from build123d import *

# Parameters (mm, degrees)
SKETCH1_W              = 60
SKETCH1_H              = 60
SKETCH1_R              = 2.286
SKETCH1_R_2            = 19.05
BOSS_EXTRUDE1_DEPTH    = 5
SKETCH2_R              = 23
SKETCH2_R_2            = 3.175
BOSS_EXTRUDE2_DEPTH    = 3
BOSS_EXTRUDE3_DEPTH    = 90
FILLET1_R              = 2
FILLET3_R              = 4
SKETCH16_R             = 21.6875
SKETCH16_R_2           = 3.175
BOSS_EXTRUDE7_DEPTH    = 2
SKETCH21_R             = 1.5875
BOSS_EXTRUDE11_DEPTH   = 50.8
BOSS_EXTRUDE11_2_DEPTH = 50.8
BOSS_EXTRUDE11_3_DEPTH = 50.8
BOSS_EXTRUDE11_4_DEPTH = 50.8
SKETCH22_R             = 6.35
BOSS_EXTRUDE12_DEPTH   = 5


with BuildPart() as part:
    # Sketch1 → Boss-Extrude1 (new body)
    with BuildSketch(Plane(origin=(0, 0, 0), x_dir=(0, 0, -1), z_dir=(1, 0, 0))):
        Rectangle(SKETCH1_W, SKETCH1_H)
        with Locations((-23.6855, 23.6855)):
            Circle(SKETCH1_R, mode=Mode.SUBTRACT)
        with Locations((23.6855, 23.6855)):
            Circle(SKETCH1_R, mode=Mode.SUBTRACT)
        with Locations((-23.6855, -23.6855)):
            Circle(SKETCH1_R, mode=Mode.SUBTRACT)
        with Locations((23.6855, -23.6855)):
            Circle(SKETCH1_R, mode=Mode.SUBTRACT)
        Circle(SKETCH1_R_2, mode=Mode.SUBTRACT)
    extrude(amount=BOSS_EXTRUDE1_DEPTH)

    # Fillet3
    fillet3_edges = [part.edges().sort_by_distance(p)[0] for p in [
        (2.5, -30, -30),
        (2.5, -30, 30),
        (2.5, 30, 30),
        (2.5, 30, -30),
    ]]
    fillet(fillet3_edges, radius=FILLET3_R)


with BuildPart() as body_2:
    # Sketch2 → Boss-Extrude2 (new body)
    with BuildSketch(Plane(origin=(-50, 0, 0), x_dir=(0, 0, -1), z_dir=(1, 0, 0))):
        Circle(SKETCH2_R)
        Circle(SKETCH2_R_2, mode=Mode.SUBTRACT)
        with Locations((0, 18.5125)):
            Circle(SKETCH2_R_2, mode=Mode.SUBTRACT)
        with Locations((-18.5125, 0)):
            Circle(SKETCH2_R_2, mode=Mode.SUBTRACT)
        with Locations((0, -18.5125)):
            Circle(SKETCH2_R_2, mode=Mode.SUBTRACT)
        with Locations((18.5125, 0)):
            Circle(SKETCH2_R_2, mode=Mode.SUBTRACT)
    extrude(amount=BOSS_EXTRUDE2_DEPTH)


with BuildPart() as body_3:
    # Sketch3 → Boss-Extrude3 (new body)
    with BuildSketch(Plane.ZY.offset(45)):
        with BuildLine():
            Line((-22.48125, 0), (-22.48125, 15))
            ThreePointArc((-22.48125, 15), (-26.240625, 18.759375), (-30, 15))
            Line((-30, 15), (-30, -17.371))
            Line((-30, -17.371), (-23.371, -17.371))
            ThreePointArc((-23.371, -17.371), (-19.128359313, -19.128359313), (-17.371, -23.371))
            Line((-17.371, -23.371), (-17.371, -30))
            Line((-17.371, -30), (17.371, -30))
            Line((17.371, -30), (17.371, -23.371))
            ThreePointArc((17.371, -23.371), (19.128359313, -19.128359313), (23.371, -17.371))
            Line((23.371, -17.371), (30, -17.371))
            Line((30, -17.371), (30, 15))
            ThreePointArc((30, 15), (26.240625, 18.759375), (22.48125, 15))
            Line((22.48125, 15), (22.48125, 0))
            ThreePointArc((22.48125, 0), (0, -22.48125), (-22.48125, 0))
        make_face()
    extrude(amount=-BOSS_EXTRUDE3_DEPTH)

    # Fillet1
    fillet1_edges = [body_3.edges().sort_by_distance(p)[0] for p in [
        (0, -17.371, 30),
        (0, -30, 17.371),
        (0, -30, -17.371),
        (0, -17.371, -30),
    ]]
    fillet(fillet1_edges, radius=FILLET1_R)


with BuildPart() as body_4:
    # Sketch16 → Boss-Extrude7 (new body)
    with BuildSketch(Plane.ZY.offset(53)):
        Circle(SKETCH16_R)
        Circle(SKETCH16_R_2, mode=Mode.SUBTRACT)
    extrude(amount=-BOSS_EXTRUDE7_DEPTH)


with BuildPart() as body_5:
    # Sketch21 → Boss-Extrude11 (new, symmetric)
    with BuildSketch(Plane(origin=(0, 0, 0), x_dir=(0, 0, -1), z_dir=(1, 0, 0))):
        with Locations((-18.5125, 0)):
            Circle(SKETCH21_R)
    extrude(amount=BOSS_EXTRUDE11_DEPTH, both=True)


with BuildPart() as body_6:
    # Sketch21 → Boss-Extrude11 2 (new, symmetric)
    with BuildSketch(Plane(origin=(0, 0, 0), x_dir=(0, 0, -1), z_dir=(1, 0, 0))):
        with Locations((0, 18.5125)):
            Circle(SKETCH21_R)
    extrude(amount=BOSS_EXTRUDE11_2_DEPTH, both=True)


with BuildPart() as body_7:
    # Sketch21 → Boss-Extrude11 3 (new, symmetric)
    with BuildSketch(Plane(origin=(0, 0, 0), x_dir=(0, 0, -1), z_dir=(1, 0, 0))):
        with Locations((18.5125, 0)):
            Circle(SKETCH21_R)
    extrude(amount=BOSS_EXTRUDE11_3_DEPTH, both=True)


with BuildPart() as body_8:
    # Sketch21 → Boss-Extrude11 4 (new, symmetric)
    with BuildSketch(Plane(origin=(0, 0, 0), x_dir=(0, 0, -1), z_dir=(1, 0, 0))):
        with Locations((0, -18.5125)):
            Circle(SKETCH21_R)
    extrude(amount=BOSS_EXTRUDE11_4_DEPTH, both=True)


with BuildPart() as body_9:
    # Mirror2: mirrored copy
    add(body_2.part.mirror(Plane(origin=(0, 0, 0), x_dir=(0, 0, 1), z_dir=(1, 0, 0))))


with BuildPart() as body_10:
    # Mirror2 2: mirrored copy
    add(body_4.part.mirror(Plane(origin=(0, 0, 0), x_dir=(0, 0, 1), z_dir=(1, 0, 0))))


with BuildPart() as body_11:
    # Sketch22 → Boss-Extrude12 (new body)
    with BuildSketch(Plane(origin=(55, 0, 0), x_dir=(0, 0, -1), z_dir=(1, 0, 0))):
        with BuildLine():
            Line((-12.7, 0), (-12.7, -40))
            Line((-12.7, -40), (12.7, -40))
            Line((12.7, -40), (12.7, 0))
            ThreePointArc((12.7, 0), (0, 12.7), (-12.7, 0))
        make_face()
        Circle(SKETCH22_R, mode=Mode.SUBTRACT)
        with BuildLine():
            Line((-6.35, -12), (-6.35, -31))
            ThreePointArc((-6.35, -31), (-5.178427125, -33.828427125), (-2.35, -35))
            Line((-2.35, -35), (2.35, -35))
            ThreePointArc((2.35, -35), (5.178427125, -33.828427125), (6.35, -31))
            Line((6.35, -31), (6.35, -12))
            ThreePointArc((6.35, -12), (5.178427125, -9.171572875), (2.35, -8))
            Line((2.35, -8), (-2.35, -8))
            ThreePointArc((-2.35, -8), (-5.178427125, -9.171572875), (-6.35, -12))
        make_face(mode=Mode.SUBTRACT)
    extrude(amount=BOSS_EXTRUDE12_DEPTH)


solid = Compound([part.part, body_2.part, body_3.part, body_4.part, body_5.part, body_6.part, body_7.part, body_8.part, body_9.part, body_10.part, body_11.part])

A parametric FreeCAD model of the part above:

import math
import FreeCAD as App
import Part
import Sketcher


def edges_at(feature, points):
    """Names of the edges that pass closest to the given points."""
    edges = feature.Shape.Edges
    near = lambda p: min(range(len(edges)), key=lambda i: edges[i].distToShape(Part.Vertex(*p))[0])
    return sorted({f"Edge{near(p) + 1}" for p in points})


def add_polygon(sketch, points):
    """Adds a closed chain of lines whose ends are joined by coincident constraints."""
    first, n = sketch.GeometryCount, len(points)
    for a, b in zip(points, points[1:] + points[:1]):
        sketch.addGeometry(Part.LineSegment(App.Vector(*a, 0), App.Vector(*b, 0)), False)
    for i in range(n):
        sketch.addConstraint(Sketcher.Constraint("Coincident", first + i, 2, first + (i + 1) % n, 1))

doc = App.newDocument("Part")
params = doc.addObject("Spreadsheet::Sheet", "Params")
for row, (alias, value) in enumerate([
    ("sketch1_diameter", "38.1 mm"),
    ("sketch1_width", "60 mm"),
    ("pad1_length", "5 mm"),
    ("fillet_radius", "4 mm"),
    ("sketch2_diameter", "46 mm"),
    ("sketch2_diameter2", "6.35 mm"),
    ("pad2_length", "3 mm"),
    ("sketch3_radius", "6 mm"),
    ("sketch3_width", "15 mm"),
    ("pad3_length", "90 mm"),
    ("fillet2_radius", "2 mm"),
    ("sketch4_diameter", "6.35 mm"),
    ("pad4_length", "2 mm"),
    ("pad5_length", "101.6 mm"),
    ("pad6_length", "101.6 mm"),
    ("pad7_length", "101.6 mm"),
    ("pad8_length", "101.6 mm"),
    ("sketch9_radius", "4 mm"),
    ("sketch9_diameter", "12.7 mm"),
    ("sketch9_radius2", "12.7 mm"),
    ("sketch9_width", "40 mm"),
    ("sketch9_width2", "19 mm"),
    ("pad9_length", "5 mm"),
], start=1):
    params.set(f"A{row}", alias)
    params.set(f"B{row}", "=" + value)
    params.setAlias(f"B{row}", alias)

body = doc.addObject("PartDesign::Body", "Body")

sketch1 = body.newObject("Sketcher::SketchObject", "Sketch")
sketch1.AttachmentSupport = (doc.getObject("YZ_Plane"), [""])
sketch1.MapMode = "FlatFace"
add_polygon(sketch1, [(30, 30), (-30, 30), (-30, -30), (30, -30)])
sketch1.addGeometry(Part.Circle(App.Vector(-23.6855, 23.6855, 0), App.Vector(0, 0, 1), 2.286), False)
sketch1.addGeometry(Part.Circle(App.Vector(-23.6855, -23.6855, 0), App.Vector(0, 0, 1), 2.286), False)
sketch1.addGeometry(Part.Circle(App.Vector(23.6855, 23.6855, 0), App.Vector(0, 0, 1), 2.286), False)
sketch1.addGeometry(Part.Circle(App.Vector(0, 0, 0), App.Vector(0, 0, 1), 19.05), False)
sketch1.addGeometry(Part.Circle(App.Vector(23.6855, -23.6855, 0), App.Vector(0, 0, 1), 2.286), False)
sketch1.addConstraint([
    Sketcher.Constraint("Horizontal", 0),
    Sketcher.Constraint("Vertical", 1),
    Sketcher.Constraint("Horizontal", 2),
    Sketcher.Constraint("Vertical", 3),
    Sketcher.Constraint("Coincident", 7, 3, -1, 1),
    Sketcher.Constraint("Equal", 4, 5),
    Sketcher.Constraint("Equal", 5, 6),
    Sketcher.Constraint("Equal", 6, 8),
    Sketcher.Constraint("Symmetric", 5, 3, 6, 3, -1, 1),
    Sketcher.Constraint("Symmetric", 4, 3, 8, 3, -1, 1),
    Sketcher.Constraint("Symmetric", 0, 2, 2, 2, -1, 1),
    Sketcher.Constraint("Symmetric", 4, 3, 6, 3, -2),
    Sketcher.Constraint("Equal", 2, 1),
    Sketcher.Constraint("Diameter", 7, 38.1),
    Sketcher.Constraint("DistanceX", 0, 2, 0, 1, 60.0),
    Sketcher.Constraint("Diameter", 4, 4.572),
    Sketcher.Constraint("DistanceY", 5, 3, 4, 3, 47.371),
    Sketcher.Constraint("DistanceX", 4, 3, 6, 3, 47.371),
])
sketch1.setExpression("Constraints[17]", "Params.sketch1_diameter")
sketch1.setExpression("Constraints[18]", "Params.sketch1_width")
pad1 = body.newObject("PartDesign::Pad", "Pad")
pad1.Profile = sketch1
pad1.setExpression("Length", "Params.pad1_length")
doc.recompute()

fillet = body.newObject("PartDesign::Fillet", "Fillet")
fillet.Base = (pad1, edges_at(pad1, [
    (2.5, -30, -30),
    (2.5, -30, 30),
    (2.5, 30, 30),
    (2.5, 30, -30),
]))
fillet.setExpression("Radius", "Params.fillet_radius")
body2 = doc.addObject("PartDesign::Body", "Body001")

sketch2 = body2.newObject("Sketcher::SketchObject", "Sketch001")
sketch2.AttachmentSupport = (doc.getObject("YZ_Plane001"), [""])
sketch2.MapMode = "FlatFace"
sketch2.AttachmentOffset = App.Placement(App.Vector(0, 0, -50), App.Rotation())
sketch2.addGeometry([
    Part.Circle(App.Vector(0, 0, 0), App.Vector(0, 0, 1), 23),
    Part.Circle(App.Vector(-18.5125, 0, 0), App.Vector(0, 0, 1), 3.175),
    Part.Circle(App.Vector(0, 18.5125, 0), App.Vector(0, 0, 1), 3.175),
    Part.Circle(App.Vector(0, 0, 0), App.Vector(0, 0, 1), 3.175),
    Part.Circle(App.Vector(0, -18.5125, 0), App.Vector(0, 0, 1), 3.175),
    Part.Circle(App.Vector(18.5125, 0, 0), App.Vector(0, 0, 1), 3.175),
], False)
sketch2.addConstraint([
    Sketcher.Constraint("Coincident", 0, 3, -1, 1),
    Sketcher.Constraint("Coincident", 3, 3, -1, 1),
    Sketcher.Constraint("Equal", 1, 2),
    Sketcher.Constraint("Equal", 2, 3),
    Sketcher.Constraint("Equal", 3, 4),
    Sketcher.Constraint("Equal", 4, 5),
    Sketcher.Constraint("Symmetric", 2, 3, 4, 3, -1, 1),
    Sketcher.Constraint("Symmetric", 1, 3, 5, 3, -1, 1),
    Sketcher.Constraint("PointOnObject", 1, 3, -1),
    Sketcher.Constraint("PointOnObject", 2, 3, -2),
    Sketcher.Constraint("Diameter", 0, 46.0),
    Sketcher.Constraint("Diameter", 1, 6.35),
    Sketcher.Constraint("DistanceY", 4, 3, 2, 3, 37.025),
    Sketcher.Constraint("DistanceX", 1, 3, 5, 3, 37.025),
])
sketch2.setExpression("Constraints[10]", "Params.sketch2_diameter")
sketch2.setExpression("Constraints[11]", "Params.sketch2_diameter2")
pad2 = body2.newObject("PartDesign::Pad", "Pad001")
pad2.Profile = sketch2
pad2.setExpression("Length", "Params.pad2_length")
body3 = doc.addObject("PartDesign::Body", "Body002")

sketch3 = body3.newObject("Sketcher::SketchObject", "Sketch002")
sketch3.AttachmentSupport = (doc.getObject("YZ_Plane002"), [""])
sketch3.MapMode = "FlatFace"
sketch3.AttachmentOffset = App.Placement(App.Vector(0, 0, -45), App.Rotation())
sketch3.addGeometry([
    Part.LineSegment(App.Vector(0, -22.48125, 0), App.Vector(15, -22.48125, 0)),
    Part.ArcOfCircle(Part.Circle(App.Vector(15, -26.240625, 0), App.Vector(0, 0, 1), 3.759375), math.radians(-90), math.radians(90)),
    Part.LineSegment(App.Vector(15, -30, 0), App.Vector(-17.371, -30, 0)),
    Part.LineSegment(App.Vector(-17.371, -30, 0), App.Vector(-17.371, -23.371, 0)),
    Part.ArcOfCircle(Part.Circle(App.Vector(-23.371, -23.371, 0), App.Vector(0, 0, 1), 6), math.radians(0), math.radians(90)),
    Part.LineSegment(App.Vector(-23.371, -17.371, 0), App.Vector(-30, -17.371, 0)),
    Part.LineSegment(App.Vector(-30, -17.371, 0), App.Vector(-30, 17.371, 0)),
    Part.LineSegment(App.Vector(-30, 17.371, 0), App.Vector(-23.371, 17.371, 0)),
    Part.ArcOfCircle(Part.Circle(App.Vector(-23.371, 23.371, 0), App.Vector(0, 0, 1), 6), math.radians(-90), math.radians(0)),
    Part.LineSegment(App.Vector(-17.371, 23.371, 0), App.Vector(-17.371, 30, 0)),
    Part.LineSegment(App.Vector(-17.371, 30, 0), App.Vector(15, 30, 0)),
    Part.ArcOfCircle(Part.Circle(App.Vector(15, 26.240625, 0), App.Vector(0, 0, 1), 3.759375), math.radians(-90), math.radians(90)),
    Part.LineSegment(App.Vector(15, 22.48125, 0), App.Vector(0, 22.48125, 0)),
    Part.ArcOfCircle(Part.Circle(App.Vector(0, 0, 0), App.Vector(0, 0, 1), 22.48125), math.radians(90), math.radians(270)),
], False)
sketch3.addConstraint([
    Sketcher.Constraint("Tangent", 0, 2, 1, 2),
    Sketcher.Constraint("Tangent", 1, 1, 2, 1),
    Sketcher.Constraint("Coincident", 2, 2, 3, 1),
    Sketcher.Constraint("Tangent", 3, 2, 4, 1),
    Sketcher.Constraint("Tangent", 4, 2, 5, 1),
    Sketcher.Constraint("Coincident", 5, 2, 6, 1),
    Sketcher.Constraint("Coincident", 6, 2, 7, 1),
    Sketcher.Constraint("Tangent", 7, 2, 8, 1),
    Sketcher.Constraint("Tangent", 8, 2, 9, 1),
    Sketcher.Constraint("Coincident", 9, 2, 10, 1),
    Sketcher.Constraint("Tangent", 10, 2, 11, 2),
    Sketcher.Constraint("Tangent", 11, 1, 12, 1),
    Sketcher.Constraint("Tangent", 12, 2, 13, 1),
    Sketcher.Constraint("Tangent", 13, 2, 0, 1),
    Sketcher.Constraint("Horizontal", 0),
    Sketcher.Constraint("Horizontal", 2),
    Sketcher.Constraint("Vertical", 3),
    Sketcher.Constraint("Horizontal", 5),
    Sketcher.Constraint("Vertical", 6),
    Sketcher.Constraint("Horizontal", 7),
    Sketcher.Constraint("Vertical", 9),
    Sketcher.Constraint("Horizontal", 10),
    Sketcher.Constraint("Horizontal", 12),
    Sketcher.Constraint("Coincident", 13, 3, -1, 1),
    Sketcher.Constraint("Equal", 4, 8),
    Sketcher.Constraint("Equal", 1, 11),
    Sketcher.Constraint("Symmetric", 4, 3, 8, 3, -1),
    Sketcher.Constraint("Vertical", 1, 3, 11, 3),
    Sketcher.Constraint("Equal", 7, 3),
    Sketcher.Constraint("Radius", 4, 6.0),
    Sketcher.Constraint("DistanceX", 0, 1, 0, 2, 15.0),
    Sketcher.Constraint("DistanceY", 1, 1, -1, 1, 30.0),
    Sketcher.Constraint("DistanceX", 5, 2, -1, 1, 30.0),
    Sketcher.Constraint("DistanceX", 2, 2, 2, 1, 32.371),
    Sketcher.Constraint("Radius", 13, 22.48125),
])
sketch3.setExpression("Constraints[29]", "Params.sketch3_radius")
sketch3.setExpression("Constraints[30]", "Params.sketch3_width")
pad3 = body3.newObject("PartDesign::Pad", "Pad002")
pad3.Profile = sketch3
pad3.setExpression("Length", "Params.pad3_length")
doc.recompute()

fillet2 = body3.newObject("PartDesign::Fillet", "Fillet001")
fillet2.Base = (pad3, edges_at(pad3, [
    (0, -17.371, 30),
    (0, -30, 17.371),
    (0, -30, -17.371),
    (0, -17.371, -30),
]))
fillet2.setExpression("Radius", "Params.fillet2_radius")
body4 = doc.addObject("PartDesign::Body", "Body003")

sketch4 = body4.newObject("Sketcher::SketchObject", "Sketch003")
sketch4.AttachmentSupport = (doc.getObject("YZ_Plane003"), [""])
sketch4.MapMode = "FlatFace"
sketch4.AttachmentOffset = App.Placement(App.Vector(0, 0, -53), App.Rotation())
sketch4.addGeometry([
    Part.Circle(App.Vector(0, 0, 0), App.Vector(0, 0, 1), 21.6875),
    Part.Circle(App.Vector(0, 0, 0), App.Vector(0, 0, 1), 3.175),
], False)
sketch4.addConstraint([
    Sketcher.Constraint("Coincident", 0, 3, -1, 1),
    Sketcher.Constraint("Coincident", 1, 3, -1, 1),
    Sketcher.Constraint("Diameter", 1, 6.35),
    Sketcher.Constraint("Diameter", 0, 43.375),
])
sketch4.setExpression("Constraints[2]", "Params.sketch4_diameter")
pad4 = body4.newObject("PartDesign::Pad", "Pad003")
pad4.Profile = sketch4
pad4.setExpression("Length", "Params.pad4_length")
body5 = doc.addObject("PartDesign::Body", "Body004")

sketch5 = body5.newObject("Sketcher::SketchObject", "Sketch004")
sketch5.AttachmentSupport = (doc.getObject("YZ_Plane004"), [""])
sketch5.MapMode = "FlatFace"
sketch5.addGeometry(Part.Circle(App.Vector(0, 18.5125, 0), App.Vector(0, 0, 1), 1.5875), False)
sketch5.addConstraint([
    Sketcher.Constraint("PointOnObject", 0, 3, -2),
    Sketcher.Constraint("Diameter", 0, 3.175),
    Sketcher.Constraint("DistanceY", -1, 1, 0, 3, 18.5125),
])
pad5 = body5.newObject("PartDesign::Pad", "Pad004")
pad5.Profile = sketch5
pad5.setExpression("Length", "Params.pad5_length")
pad5.Midplane = True
body6 = doc.addObject("PartDesign::Body", "Body005")

sketch6 = body6.newObject("Sketcher::SketchObject", "Sketch005")
sketch6.AttachmentSupport = (doc.getObject("YZ_Plane005"), [""])
sketch6.MapMode = "FlatFace"
sketch6.addGeometry(Part.Circle(App.Vector(18.5125, 0, 0), App.Vector(0, 0, 1), 1.5875), False)
sketch6.addConstraint([
    Sketcher.Constraint("PointOnObject", 0, 3, -1),
    Sketcher.Constraint("Diameter", 0, 3.175),
    Sketcher.Constraint("DistanceX", -1, 1, 0, 3, 18.5125),
])
pad6 = body6.newObject("PartDesign::Pad", "Pad005")
pad6.Profile = sketch6
pad6.setExpression("Length", "Params.pad6_length")
pad6.Midplane = True
body7 = doc.addObject("PartDesign::Body", "Body006")

sketch7 = body7.newObject("Sketcher::SketchObject", "Sketch006")
sketch7.AttachmentSupport = (doc.getObject("YZ_Plane006"), [""])
sketch7.MapMode = "FlatFace"
sketch7.addGeometry(Part.Circle(App.Vector(0, -18.5125, 0), App.Vector(0, 0, 1), 1.5875), False)
sketch7.addConstraint([
    Sketcher.Constraint("PointOnObject", 0, 3, -2),
    Sketcher.Constraint("Diameter", 0, 3.175),
    Sketcher.Constraint("DistanceY", 0, 3, -1, 1, 18.5125),
])
pad7 = body7.newObject("PartDesign::Pad", "Pad006")
pad7.Profile = sketch7
pad7.setExpression("Length", "Params.pad7_length")
pad7.Midplane = True
body8 = doc.addObject("PartDesign::Body", "Body007")

sketch8 = body8.newObject("Sketcher::SketchObject", "Sketch007")
sketch8.AttachmentSupport = (doc.getObject("YZ_Plane007"), [""])
sketch8.MapMode = "FlatFace"
sketch8.addGeometry(Part.Circle(App.Vector(-18.5125, 0, 0), App.Vector(0, 0, 1), 1.5875), False)
sketch8.addConstraint([
    Sketcher.Constraint("PointOnObject", 0, 3, -1),
    Sketcher.Constraint("Diameter", 0, 3.175),
    Sketcher.Constraint("DistanceX", 0, 3, -1, 1, 18.5125),
])
pad8 = body8.newObject("PartDesign::Pad", "Pad007")
pad8.Profile = sketch8
pad8.setExpression("Length", "Params.pad8_length")
pad8.Midplane = True
body9 = doc.addObject("PartDesign::Body", "Body008")
doc.recompute()

mirroring = doc.addObject("Part::Mirroring", "Mirroring")
mirroring.Source = body2
mirroring.Base = App.Vector(0, 0, 0)
mirroring.Normal = App.Vector(1, 0, 0)
body9.BaseFeature = mirroring
doc.recompute()
body10 = doc.addObject("PartDesign::Body", "Body009")
doc.recompute()

mirroring2 = doc.addObject("Part::Mirroring", "Mirroring001")
mirroring2.Source = body4
mirroring2.Base = App.Vector(0, 0, 0)
mirroring2.Normal = App.Vector(1, 0, 0)
body10.BaseFeature = mirroring2
doc.recompute()
body11 = doc.addObject("PartDesign::Body", "Body010")

sketch9 = body11.newObject("Sketcher::SketchObject", "Sketch008")
sketch9.AttachmentSupport = (doc.getObject("YZ_Plane010"), [""])
sketch9.MapMode = "FlatFace"
sketch9.AttachmentOffset = App.Placement(App.Vector(0, 0, 55), App.Rotation())
sketch9.addGeometry([
    Part.LineSegment(App.Vector(0, 12.7, 0), App.Vector(-40, 12.7, 0)),
    Part.LineSegment(App.Vector(-40, 12.7, 0), App.Vector(-40, -12.7, 0)),
    Part.LineSegment(App.Vector(-40, -12.7, 0), App.Vector(0, -12.7, 0)),
    Part.ArcOfCircle(Part.Circle(App.Vector(0, 0, 0), App.Vector(0, 0, 1), 12.7), math.radians(-90), math.radians(90)),
    Part.LineSegment(App.Vector(-31, 6.35, 0), App.Vector(-12, 6.35, 0)),
    Part.ArcOfCircle(Part.Circle(App.Vector(-12, 2.35, 0), App.Vector(0, 0, 1), 4), math.radians(0), math.radians(90)),
    Part.LineSegment(App.Vector(-8, 2.35, 0), App.Vector(-8, -2.35, 0)),
    Part.ArcOfCircle(Part.Circle(App.Vector(-12, -2.35, 0), App.Vector(0, 0, 1), 4), math.radians(-90), math.radians(0)),
    Part.LineSegment(App.Vector(-12, -6.35, 0), App.Vector(-31, -6.35, 0)),
    Part.ArcOfCircle(Part.Circle(App.Vector(-31, -2.35, 0), App.Vector(0, 0, 1), 4), math.radians(180), math.radians(270)),
    Part.LineSegment(App.Vector(-35, -2.35, 0), App.Vector(-35, 2.35, 0)),
    Part.ArcOfCircle(Part.Circle(App.Vector(-31, 2.35, 0), App.Vector(0, 0, 1), 4), math.radians(90), math.radians(180)),
    Part.Circle(App.Vector(0, 0, 0), App.Vector(0, 0, 1), 6.35),
], False)
sketch9.addConstraint([
    Sketcher.Constraint("Coincident", 0, 2, 1, 1),
    Sketcher.Constraint("Coincident", 1, 2, 2, 1),
    Sketcher.Constraint("Tangent", 2, 2, 3, 1),
    Sketcher.Constraint("Tangent", 3, 2, 0, 1),
    Sketcher.Constraint("Tangent", 4, 2, 5, 2),
    Sketcher.Constraint("Tangent", 5, 1, 6, 1),
    Sketcher.Constraint("Tangent", 6, 2, 7, 2),
    Sketcher.Constraint("Tangent", 7, 1, 8, 1),
    Sketcher.Constraint("Tangent", 8, 2, 9, 2),
    Sketcher.Constraint("Tangent", 9, 1, 10, 1),
    Sketcher.Constraint("Tangent", 10, 2, 11, 2),
    Sketcher.Constraint("Tangent", 11, 1, 4, 1),
    Sketcher.Constraint("Horizontal", 0),
    Sketcher.Constraint("Vertical", 1),
    Sketcher.Constraint("Horizontal", 2),
    Sketcher.Constraint("Horizontal", 4),
    Sketcher.Constraint("Vertical", 6),
    Sketcher.Constraint("Horizontal", 8),
    Sketcher.Constraint("Vertical", 10),
    Sketcher.Constraint("Coincident", 3, 3, -1, 1),
    Sketcher.Constraint("Coincident", 12, 3, -1, 1),
    Sketcher.Constraint("Equal", 5, 7),
    Sketcher.Constraint("Equal", 7, 9),
    Sketcher.Constraint("Equal", 9, 11),
    Sketcher.Constraint("Radius", 5, 4.0),
    Sketcher.Constraint("Diameter", 12, 12.7),
    Sketcher.Constraint("Radius", 3, 12.7),
    Sketcher.Constraint("DistanceX", 0, 2, 0, 1, 40.0),
    Sketcher.Constraint("DistanceX", 4, 1, 4, 2, 19.0),
    Sketcher.Constraint("DistanceY", 6, 2, 6, 1, 4.7),
    Sketcher.Constraint("DistanceX", 5, 3, -1, 1, 12.0),
    Sketcher.Constraint("DistanceY", -1, 1, 5, 3, 2.35),
])
sketch9.setExpression("Constraints[24]", "Params.sketch9_radius")
sketch9.setExpression("Constraints[25]", "Params.sketch9_diameter")
sketch9.setExpression("Constraints[26]", "Params.sketch9_radius2")
sketch9.setExpression("Constraints[27]", "Params.sketch9_width")
sketch9.setExpression("Constraints[28]", "Params.sketch9_width2")
pad9 = body11.newObject("PartDesign::Pad", "Pad008")
pad9.Profile = sketch9
pad9.setExpression("Length", "Params.pad9_length")
mirroring.Visibility = False
mirroring2.Visibility = False

doc.recompute()
